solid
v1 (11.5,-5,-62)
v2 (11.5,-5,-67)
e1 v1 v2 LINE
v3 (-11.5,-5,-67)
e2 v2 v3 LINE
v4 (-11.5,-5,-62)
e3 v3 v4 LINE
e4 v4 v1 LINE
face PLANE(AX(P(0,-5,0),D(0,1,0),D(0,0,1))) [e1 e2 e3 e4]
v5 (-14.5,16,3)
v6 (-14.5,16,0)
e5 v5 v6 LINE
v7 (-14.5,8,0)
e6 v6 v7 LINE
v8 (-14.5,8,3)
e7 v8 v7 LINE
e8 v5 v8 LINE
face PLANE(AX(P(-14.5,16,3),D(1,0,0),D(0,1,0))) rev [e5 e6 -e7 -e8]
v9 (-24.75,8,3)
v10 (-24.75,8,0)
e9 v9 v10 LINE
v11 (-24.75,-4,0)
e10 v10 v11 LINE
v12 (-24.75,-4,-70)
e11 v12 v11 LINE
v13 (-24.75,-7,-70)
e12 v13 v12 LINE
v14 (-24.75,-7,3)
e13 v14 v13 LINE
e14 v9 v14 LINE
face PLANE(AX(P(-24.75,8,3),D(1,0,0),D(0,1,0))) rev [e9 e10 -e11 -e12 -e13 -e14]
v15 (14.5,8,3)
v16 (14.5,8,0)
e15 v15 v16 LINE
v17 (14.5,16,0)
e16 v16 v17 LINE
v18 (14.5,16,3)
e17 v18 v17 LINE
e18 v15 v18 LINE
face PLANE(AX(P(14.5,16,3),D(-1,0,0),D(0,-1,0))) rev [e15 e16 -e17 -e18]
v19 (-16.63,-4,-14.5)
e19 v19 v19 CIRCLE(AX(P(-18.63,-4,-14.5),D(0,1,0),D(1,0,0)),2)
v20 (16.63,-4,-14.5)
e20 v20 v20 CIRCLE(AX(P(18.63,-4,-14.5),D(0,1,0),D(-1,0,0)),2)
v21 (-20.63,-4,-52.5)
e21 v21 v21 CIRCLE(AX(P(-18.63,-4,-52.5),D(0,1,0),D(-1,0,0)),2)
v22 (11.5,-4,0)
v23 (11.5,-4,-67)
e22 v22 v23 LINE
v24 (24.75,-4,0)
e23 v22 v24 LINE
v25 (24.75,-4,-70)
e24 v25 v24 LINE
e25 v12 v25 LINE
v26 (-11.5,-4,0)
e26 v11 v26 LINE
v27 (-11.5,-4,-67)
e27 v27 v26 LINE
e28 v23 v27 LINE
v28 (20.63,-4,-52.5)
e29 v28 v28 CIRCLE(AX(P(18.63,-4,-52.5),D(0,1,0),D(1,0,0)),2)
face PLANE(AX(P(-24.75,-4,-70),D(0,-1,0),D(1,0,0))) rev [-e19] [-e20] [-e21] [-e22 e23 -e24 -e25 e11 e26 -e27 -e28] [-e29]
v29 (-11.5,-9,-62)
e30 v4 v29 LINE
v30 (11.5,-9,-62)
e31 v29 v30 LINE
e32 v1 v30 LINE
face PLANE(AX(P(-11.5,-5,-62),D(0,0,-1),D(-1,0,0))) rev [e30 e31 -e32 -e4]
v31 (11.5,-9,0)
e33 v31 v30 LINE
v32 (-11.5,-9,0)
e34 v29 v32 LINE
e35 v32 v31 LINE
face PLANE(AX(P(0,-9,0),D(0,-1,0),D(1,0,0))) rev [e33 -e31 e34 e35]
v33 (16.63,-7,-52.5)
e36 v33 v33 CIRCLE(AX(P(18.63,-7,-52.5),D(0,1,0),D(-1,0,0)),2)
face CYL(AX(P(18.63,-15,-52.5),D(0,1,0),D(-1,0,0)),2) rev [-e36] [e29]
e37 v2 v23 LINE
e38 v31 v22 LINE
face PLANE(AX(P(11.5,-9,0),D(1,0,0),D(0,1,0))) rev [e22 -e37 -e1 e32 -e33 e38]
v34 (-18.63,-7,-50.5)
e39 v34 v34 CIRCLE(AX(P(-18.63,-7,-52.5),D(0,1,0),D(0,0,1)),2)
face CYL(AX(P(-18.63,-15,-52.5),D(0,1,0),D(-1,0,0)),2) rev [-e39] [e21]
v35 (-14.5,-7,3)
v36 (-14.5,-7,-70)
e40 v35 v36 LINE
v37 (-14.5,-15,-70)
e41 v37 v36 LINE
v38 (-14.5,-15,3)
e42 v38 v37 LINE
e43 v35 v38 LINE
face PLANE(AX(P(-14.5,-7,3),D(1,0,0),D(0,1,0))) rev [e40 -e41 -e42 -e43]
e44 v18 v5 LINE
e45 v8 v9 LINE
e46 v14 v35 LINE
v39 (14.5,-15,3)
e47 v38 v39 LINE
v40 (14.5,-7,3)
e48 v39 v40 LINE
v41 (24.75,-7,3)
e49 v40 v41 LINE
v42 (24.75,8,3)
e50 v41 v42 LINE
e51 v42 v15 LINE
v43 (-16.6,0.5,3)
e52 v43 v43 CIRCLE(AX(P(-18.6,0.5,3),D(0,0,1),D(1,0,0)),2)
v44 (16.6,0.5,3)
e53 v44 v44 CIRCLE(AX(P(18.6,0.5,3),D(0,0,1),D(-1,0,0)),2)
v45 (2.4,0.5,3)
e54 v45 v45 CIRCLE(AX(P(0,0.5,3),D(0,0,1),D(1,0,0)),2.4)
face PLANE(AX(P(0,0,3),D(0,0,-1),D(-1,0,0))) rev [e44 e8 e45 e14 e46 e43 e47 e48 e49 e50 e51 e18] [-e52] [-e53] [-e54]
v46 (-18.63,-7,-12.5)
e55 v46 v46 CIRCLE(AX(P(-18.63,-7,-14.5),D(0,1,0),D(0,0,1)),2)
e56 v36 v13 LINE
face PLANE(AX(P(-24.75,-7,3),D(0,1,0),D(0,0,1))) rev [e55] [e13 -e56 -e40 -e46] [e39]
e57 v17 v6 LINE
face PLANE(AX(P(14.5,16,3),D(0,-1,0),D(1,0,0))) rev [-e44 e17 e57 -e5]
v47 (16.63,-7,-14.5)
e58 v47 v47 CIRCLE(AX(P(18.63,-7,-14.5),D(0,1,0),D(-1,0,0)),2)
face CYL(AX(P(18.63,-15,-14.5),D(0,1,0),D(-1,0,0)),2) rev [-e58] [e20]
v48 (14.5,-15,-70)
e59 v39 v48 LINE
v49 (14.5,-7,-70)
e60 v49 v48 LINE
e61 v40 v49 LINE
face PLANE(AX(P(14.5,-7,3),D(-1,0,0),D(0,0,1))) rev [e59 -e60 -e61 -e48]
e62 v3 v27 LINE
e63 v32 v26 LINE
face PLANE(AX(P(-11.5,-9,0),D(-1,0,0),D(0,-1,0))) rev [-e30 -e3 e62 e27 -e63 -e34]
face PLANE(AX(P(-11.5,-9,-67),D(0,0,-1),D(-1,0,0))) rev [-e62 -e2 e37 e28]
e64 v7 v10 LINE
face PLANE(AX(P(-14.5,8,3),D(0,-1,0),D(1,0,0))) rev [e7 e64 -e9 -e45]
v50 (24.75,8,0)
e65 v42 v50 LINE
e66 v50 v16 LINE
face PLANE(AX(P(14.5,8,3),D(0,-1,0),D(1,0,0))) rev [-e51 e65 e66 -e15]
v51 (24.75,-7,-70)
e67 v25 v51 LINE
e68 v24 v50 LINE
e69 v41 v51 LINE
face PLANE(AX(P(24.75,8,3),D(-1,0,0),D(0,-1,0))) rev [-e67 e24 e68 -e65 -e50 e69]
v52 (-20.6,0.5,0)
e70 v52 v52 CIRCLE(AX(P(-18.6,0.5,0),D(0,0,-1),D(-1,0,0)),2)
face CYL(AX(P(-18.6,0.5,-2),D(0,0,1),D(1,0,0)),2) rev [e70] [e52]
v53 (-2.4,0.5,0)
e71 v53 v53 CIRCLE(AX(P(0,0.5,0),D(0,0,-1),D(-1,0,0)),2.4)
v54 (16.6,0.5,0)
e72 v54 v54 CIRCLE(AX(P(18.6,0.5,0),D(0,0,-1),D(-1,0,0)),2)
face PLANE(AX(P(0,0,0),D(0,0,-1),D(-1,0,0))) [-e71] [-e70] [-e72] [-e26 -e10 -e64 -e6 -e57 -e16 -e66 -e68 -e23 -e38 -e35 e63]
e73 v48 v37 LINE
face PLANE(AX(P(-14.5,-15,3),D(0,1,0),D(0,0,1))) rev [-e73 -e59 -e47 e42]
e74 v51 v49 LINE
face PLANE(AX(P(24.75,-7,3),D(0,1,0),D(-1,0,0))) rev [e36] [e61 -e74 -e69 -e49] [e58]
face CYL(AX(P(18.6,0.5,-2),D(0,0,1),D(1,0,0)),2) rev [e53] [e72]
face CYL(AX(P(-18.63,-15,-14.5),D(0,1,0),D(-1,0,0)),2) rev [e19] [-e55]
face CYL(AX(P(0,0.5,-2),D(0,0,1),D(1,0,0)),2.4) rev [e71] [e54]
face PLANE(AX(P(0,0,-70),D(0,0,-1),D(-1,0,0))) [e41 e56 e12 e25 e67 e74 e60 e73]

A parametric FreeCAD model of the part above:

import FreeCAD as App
import Part
import Sketcher
from FreeCAD import Vector

doc = App.newDocument("Part")
body = doc.addObject("PartDesign::Body", "Body")

# Sketch on XY plane
sketch1 = body.newObject("Sketcher::SketchObject", "Sketch")
sketch1.AttachmentSupport = (doc.getObject("XY_Plane"), [""])
sketch1.MapMode = "FlatFace"
sketch1.addGeometry([
    Part.LineSegment(Vector(14, 16, 0), Vector(-14, 16, 0)),  # 0
    Part.LineSegment(Vector(-14, 16, 0), Vector(-14, 8, 0)),  # 1
    Part.LineSegment(Vector(-14, 8, 0), Vector(-25, 8, 0)),  # 2
    Part.LineSegment(Vector(-25, 8, 0), Vector(-25, -7, 0)),  # 3
    Part.LineSegment(Vector(-25, -7, 0), Vector(-14, -7, 0)),  # 4
    Part.LineSegment(Vector(-14, -7, 0), Vector(-14, -15, 0)),  # 5
    Part.LineSegment(Vector(-14, -15, 0), Vector(14, -15, 0)),  # 6
    Part.LineSegment(Vector(14, -15, 0), Vector(14, -7, 0)),  # 7
    Part.LineSegment(Vector(14, -7, 0), Vector(25, -7, 0)),  # 8
    Part.LineSegment(Vector(25, -7, 0), Vector(25, 8, 0)),  # 9
    Part.LineSegment(Vector(25, 8, 0), Vector(14, 8, 0)),  # 10
    Part.LineSegment(Vector(14, 8, 0), Vector(14, 16, 0)),  # 11
], False)
sketch1.addConstraint([
    Sketcher.Constraint("Coincident", 0, 2, 1, 1),
    Sketcher.Constraint("Coincident", 1, 2, 2, 1),
    Sketcher.Constraint("Coincident", 2, 2, 3, 1),
    Sketcher.Constraint("Coincident", 3, 2, 4, 1),
    Sketcher.Constraint("Coincident", 4, 2, 5, 1),
    Sketcher.Constraint("Coincident", 5, 2, 6, 1),
    Sketcher.Constraint("Coincident", 6, 2, 7, 1),
    Sketcher.Constraint("Coincident", 7, 2, 8, 1),
    Sketcher.Constraint("Coincident", 8, 2, 9, 1),
    Sketcher.Constraint("Coincident", 9, 2, 10, 1),
    Sketcher.Constraint("Coincident", 10, 2, 11, 1),
    Sketcher.Constraint("Coincident", 11, 2, 0, 1),
    Sketcher.Constraint("Horizontal", 0),
    Sketcher.Constraint("Vertical", 1),
    Sketcher.Constraint("Horizontal", 2),
    Sketcher.Constraint("Vertical", 3),
    Sketcher.Constraint("Horizontal", 4),
    Sketcher.Constraint("Vertical", 5),
    Sketcher.Constraint("Horizontal", 6),
    Sketcher.Constraint("Vertical", 7),
    Sketcher.Constraint("Horizontal", 8),
    Sketcher.Constraint("Vertical", 9),
    Sketcher.Constraint("Horizontal", 10),
    Sketcher.Constraint("Vertical", 11),
    Sketcher.Constraint("Symmetric", 4, 2, 7, 2, -2),
    Sketcher.Constraint("Symmetric", 2, 2, 9, 2, -2),
    Sketcher.Constraint("Vertical", 1, 2, 4, 2),
    Sketcher.Constraint("Vertical", 7, 2, 10, 2),
    Sketcher.Constraint("Equal", 1, 5),
    Sketcher.Constraint("DistanceX", 0, 2, 0, 1, 29.0),
    Sketcher.Constraint("DistanceY", 1, 2, 1, 1, 8.0),
    Sketcher.Constraint("DistanceY", 3, 2, 3, 1, 15.0),
    Sketcher.Constraint("DistanceY", -1, 1, 0, 2, 16.0),
    Sketcher.Constraint("DistanceX", 2, 2, 2, 1, 10.25),
])
pad1 = body.newObject("PartDesign::Pad", "Pad")
pad1.Profile = sketch1
pad1.Length = 3

# Sketch on XY plane
sketch2 = body.newObject("Sketcher::SketchObject", "Sketch001")
sketch2.AttachmentSupport = (doc.getObject("XY_Plane"), [""])
sketch2.MapMode = "FlatFace"
sketch2.addGeometry([
    Part.LineSegment(Vector(24.8, -4, 0), Vector(24.8, -7, 0)),  # 0
    Part.LineSegment(Vector(24.8, -7, 0), Vector(14.5, -7, 0)),  # 1
    Part.LineSegment(Vector(14.5, -7, 0), Vector(14.5, -15, 0)),  # 2
    Part.LineSegment(Vector(14.5, -15, 0), Vector(-14.5, -15, 0)),  # 3
    Part.LineSegment(Vector(-14.5, -15, 0), Vector(-14.5, -7, 0)),  # 4
    Part.LineSegment(Vector(-14.5, -7, 0), Vector(-24.8, -7, 0)),  # 5
    Part.LineSegment(Vector(-24.8, -7, 0), Vector(-24.8, -4, 0)),  # 6
    Part.LineSegment(Vector(-24.8, -4, 0), Vector(24.8, -4, 0)),  # 7
], False)
sketch2.addConstraint([
    Sketcher.Constraint("Coincident", 0, 2, 1, 1),
    Sketcher.Constraint("Coincident", 1, 2, 2, 1),
    Sketcher.Constraint("Coincident", 2, 2, 3, 1),
    Sketcher.Constraint("Coincident", 3, 2, 4, 1),
    Sketcher.Constraint("Coincident", 4, 2, 5, 1),
    Sketcher.Constraint("Coincident", 5, 2, 6, 1),
    Sketcher.Constraint("Coincident", 6, 2, 7, 1),
    Sketcher.Constraint("Coincident", 7, 2, 0, 1),
    Sketcher.Constraint("Vertical", 0),
    Sketcher.Constraint("Horizontal", 1),
    Sketcher.Constraint("Vertical", 2),
    Sketcher.Constraint("Horizontal", 3),
    Sketcher.Constraint("Vertical", 4),
    Sketcher.Constraint("Horizontal", 5),
    Sketcher.Constraint("Vertical", 6),
    Sketcher.Constraint("Horizontal", 7),
    Sketcher.Constraint("Symmetric", 1, 2, 4, 2, -2),
    Sketcher.Constraint("Equal", 1, 5),
    Sketcher.Constraint("DistanceX", 3, 2, 3, 1, 29.0),
    Sketcher.Constraint("DistanceY", 0, 2, 0, 1, 3.0),
    Sketcher.Constraint("DistanceY", 2, 2, 2, 1, 8.0),
    Sketcher.Constraint("DistanceX", 7, 1, 7, 2, 49.5),
    Sketcher.Constraint("DistanceY", 0, 2, -1, 1, 7.0),
])
pad2 = body.newObject("PartDesign::Pad", "Pad001")
pad2.Profile = sketch2
pad2.Length = 70
pad2.Reversed = True

# Sketch on XZ plane
sketch3 = body.newObject("Sketcher::SketchObject", "Sketch002")
sketch3.AttachmentSupport = (doc.getObject("XZ_Plane"), [""])
sketch3.MapMode = "FlatFace"
sketch3.AttachmentOffset = App.Placement(Vector(0, 0, 4), App.Rotation())
sketch3.addGeometry([
    Part.LineSegment(Vector(-12, -67, 0), Vector(-12, 0, 0)),
    Part.LineSegment(Vector(-12, 0, 0), Vector(12, 0, 0)),
    Part.LineSegment(Vector(12, 0, 0), Vector(12, -67, 0)),
    Part.LineSegment(Vector(12, -67, 0), Vector(-12, -67, 0)),
], False)
sketch3.addConstraint([
    Sketcher.Constraint("Coincident", 0, 2, 1, 1),
    Sketcher.Constraint("Coincident", 1, 2, 2, 1),
    Sketcher.Constraint("Coincident", 2, 2, 3, 1),
    Sketcher.Constraint("Coincident", 3, 2, 0, 1),
    Sketcher.Constraint("Vertical", 0),
    Sketcher.Constraint("Horizontal", 1),
    Sketcher.Constraint("Vertical", 2),
    Sketcher.Constraint("Horizontal", 3),
    Sketcher.Constraint("Symmetric", 0, 2, 1, 2, -1, 1),
    Sketcher.Constraint("DistanceX", 1, 1, 1, 2, 23.0),
    Sketcher.Constraint("DistanceY", 0, 1, 0, 2, 67.0),
])
pocket1 = body.newObject("PartDesign::Pocket", "Pocket")
pocket1.Profile = sketch3
pocket1.Length = 5
pocket1.Reversed = True

# Sketch on XY plane
sketch4 = body.newObject("Sketcher::SketchObject", "Sketch003")
sketch4.AttachmentSupport = (doc.getObject("XY_Plane"), [""])
sketch4.MapMode = "FlatFace"
sketch4.AttachmentOffset = App.Placement(Vector(0, 0, 3), App.Rotation())
sketch4.addGeometry([
    Part.Circle(Vector(0, 0.5, 0), Vector(0, 0, 1), 2.4),
    Part.Circle(Vector(-18.6, 0.5, 0), Vector(0, 0, 1), 2),
    Part.Circle(Vector(18.6, 0.5, 0), Vector(0, 0, 1), 2),
], False)
sketch4.addConstraint([
    Sketcher.Constraint("Equal", 1, 2),
    Sketcher.Constraint("Symmetric", 1, 3, 2, 3, -2),
    Sketcher.Constraint("PointOnObject", 0, 3, -2),
    Sketcher.Constraint("Horizontal", 0, 3, 1, 3),
    Sketcher.Constraint("Diameter", 1, 4.0),
    Sketcher.Constraint("Diameter", 0, 4.8),
    Sketcher.Constraint("DistanceY", -1, 1, 0, 3, 0.5),
    Sketcher.Constraint("DistanceX", 1, 3, -1, 1, 18.6),
])
pocket2 = body.newObject("PartDesign::Pocket", "Pocket001")
pocket2.Profile = sketch4
pocket2.Length = 5

# Sketch on XZ plane
sketch5 = body.newObject("Sketcher::SketchObject", "Sketch004")
sketch5.AttachmentSupport = (doc.getObject("XZ_Plane"), [""])
sketch5.MapMode = "FlatFace"
sketch5.AttachmentOffset = App.Placement(Vector(0, 0, 9), App.Rotation())
sketch5.addGeometry([
    Part.LineSegment(Vector(-12, -67, 0), Vector(-12, -62, 0)),
    Part.LineSegment(Vector(-12, -62, 0), Vector(12, -62, 0)),
    Part.LineSegment(Vector(12, -62, 0), Vector(12, -67, 0)),
    Part.LineSegment(Vector(12, -67, 0), Vector(-12, -67, 0)),
], False)
sketch5.addConstraint([
    Sketcher.Constraint("Coincident", 0, 2, 1, 1),
    Sketcher.Constraint("Coincident", 1, 2, 2, 1),
    Sketcher.Constraint("Coincident", 2, 2, 3, 1),
    Sketcher.Constraint("Coincident", 3, 2, 0, 1),
    Sketcher.Constraint("Vertical", 0),
    Sketcher.Constraint("Horizontal", 1),
    Sketcher.Constraint("Vertical", 2),
    Sketcher.Constraint("Horizontal", 3),
    Sketcher.Constraint("DistanceX", 1, 1, 1, 2, 23.0),
    Sketcher.Constraint("DistanceY", 0, 1, 0, 2, 5.0),
    Sketcher.Constraint("DistanceY", 0, 2, -1, 1, 62.0),
    Sketcher.Constraint("DistanceX", 0, 2, -1, 1, 11.5),
])
pad3 = body.newObject("PartDesign::Pad", "Pad002")
pad3.Profile = sketch5
pad3.Length = 4
pad3.Reversed = True

# Sketch on XZ plane
sketch6 = body.newObject("Sketcher::SketchObject", "Sketch005")
sketch6.AttachmentSupport = (doc.getObject("XZ_Plane"), [""])
sketch6.MapMode = "FlatFace"
sketch6.AttachmentOffset = App.Placement(Vector(0, 0, 4), App.Rotation())
sketch6.addGeometry([
    Part.Circle(Vector(-18.6, -52.5, 0), Vector(0, 0, 1), 2),
    Part.Circle(Vector(-18.6, -14.5, 0), Vector(0, 0, 1), 2),
    Part.Circle(Vector(18.6, -14.5, 0), Vector(0, 0, 1), 2),
    Part.Circle(Vector(18.6, -52.5, 0), Vector(0, 0, 1), 2),
], False)
sketch6.addConstraint([
    Sketcher.Constraint("Equal", 0, 1),
    Sketcher.Constraint("Equal", 1, 2),
    Sketcher.Constraint("Equal", 2, 3),
    Sketcher.Constraint("Symmetric", 1, 3, 2, 3, -2),
    Sketcher.Constraint("Symmetric", 0, 3, 3, 3, -2),
    Sketcher.Constraint("Vertical", 0, 3, 1, 3),
    Sketcher.Constraint("Diameter", 0, 4.0),
    Sketcher.Constraint("DistanceY", 0, 3, 1, 3, 38.0),
    Sketcher.Constraint("DistanceY", 0, 3, -1, 1, 52.5),
    Sketcher.Constraint("DistanceX", 0, 3, -1, 1, 18.63),
])
pocket3 = body.newObject("PartDesign::Pocket", "Pocket002")
pocket3.Profile = sketch6
pocket3.Type = "ThroughAll"
pocket3.Reversed = True

doc.recompute()
